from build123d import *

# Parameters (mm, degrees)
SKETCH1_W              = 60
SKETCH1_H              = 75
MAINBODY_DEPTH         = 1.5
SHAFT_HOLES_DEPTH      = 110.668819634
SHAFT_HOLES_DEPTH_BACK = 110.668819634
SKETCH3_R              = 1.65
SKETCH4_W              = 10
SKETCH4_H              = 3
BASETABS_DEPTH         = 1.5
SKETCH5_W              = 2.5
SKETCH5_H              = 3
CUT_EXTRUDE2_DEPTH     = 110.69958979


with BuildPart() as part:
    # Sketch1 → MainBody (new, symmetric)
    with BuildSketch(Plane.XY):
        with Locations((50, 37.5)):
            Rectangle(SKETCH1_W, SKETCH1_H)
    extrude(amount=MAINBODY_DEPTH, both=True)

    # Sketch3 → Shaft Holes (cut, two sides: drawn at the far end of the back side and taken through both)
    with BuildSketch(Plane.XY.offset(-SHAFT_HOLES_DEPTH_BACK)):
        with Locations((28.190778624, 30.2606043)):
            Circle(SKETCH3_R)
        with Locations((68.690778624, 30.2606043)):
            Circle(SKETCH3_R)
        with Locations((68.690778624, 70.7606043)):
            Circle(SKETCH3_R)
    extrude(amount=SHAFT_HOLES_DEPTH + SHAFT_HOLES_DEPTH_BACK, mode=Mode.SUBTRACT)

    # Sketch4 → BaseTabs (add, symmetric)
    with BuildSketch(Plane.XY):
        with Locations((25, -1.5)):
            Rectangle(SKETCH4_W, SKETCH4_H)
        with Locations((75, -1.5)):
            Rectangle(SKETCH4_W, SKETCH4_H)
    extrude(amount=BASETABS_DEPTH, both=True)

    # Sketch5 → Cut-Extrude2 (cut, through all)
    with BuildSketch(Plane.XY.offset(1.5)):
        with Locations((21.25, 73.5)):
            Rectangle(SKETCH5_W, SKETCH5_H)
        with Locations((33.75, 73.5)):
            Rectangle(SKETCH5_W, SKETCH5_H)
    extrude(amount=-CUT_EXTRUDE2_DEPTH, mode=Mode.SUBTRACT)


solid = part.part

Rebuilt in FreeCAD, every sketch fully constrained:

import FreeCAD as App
import Part
import Sketcher

V = App.Vector
Q = App.Units.Quantity


def add_polygon(sketch, points):
    """Adds a closed chain of lines whose ends are joined by coincident constraints."""
    first, n = sketch.GeometryCount, len(points)
    for a, b in zip(points, points[1:] + points[:1]):
        sketch.addGeometry(Part.LineSegment(App.Vector(*a, 0), App.Vector(*b, 0)), False)
    for i in range(n):
        sketch.addConstraint(Sketcher.Constraint("Coincident", first + i, 2, first + (i + 1) % n, 1))

doc = App.newDocument("Part")
params = doc.addObject("Spreadsheet::Sheet", "Params")
for row, (alias, value) in enumerate([
    ("sketch1_width", "60 mm"),
    ("sketch1_height", "75 mm"),
    ("pad1_length", "3 mm"),
    ("sketch2_diameter", "3.3 mm"),
    ("sketch3_width", "10 mm"),
    ("sketch3_height", "3 mm"),
    ("pad2_length", "3 mm"),
    ("sketch4_height", "3 mm"),
    ("sketch4_width", "2.5 mm"),
], start=1):
    params.set(f"A{row}", alias)
    params.set(f"B{row}", "=" + value)
    params.setAlias(f"B{row}", alias)

body = doc.addObject("PartDesign::Body", "Body")

# Sketch on XY plane
sketch1 = body.newObject("Sketcher::SketchObject", "Sketch")
sketch1.AttachmentSupport = (doc.getObject("XY_Plane"), [""])
sketch1.MapMode = "FlatFace"
add_polygon(sketch1, [(20, 75), (20, 0), (80, 0), (80, 75)])  # lines 0-3
sketch1.addConstraint([
    Sketcher.Constraint("Vertical", 0),
    Sketcher.Constraint("Horizontal", 1),
    Sketcher.Constraint("Vertical", 2),
    Sketcher.Constraint("Horizontal", 3),
    Sketcher.Constraint("PointOnObject", 0, 2, -1),
    Sketcher.Constraint("DistanceX", 1, 1, 1, 2, Q("60 mm")),
    Sketcher.Constraint("DistanceY", 0, 2, 0, 1, Q("75 mm")),
    Sketcher.Constraint("DistanceX", -1, 1, 0, 2, Q("20 mm")),
])
sketch1.setExpression("Constraints[9]", "Params.sketch1_width")
sketch1.setExpression("Constraints[10]", "Params.sketch1_height")
pad1 = body.newObject("PartDesign::Pad", "Pad")
pad1.Profile = sketch1
pad1.setExpression("Length", "Params.pad1_length")
pad1.Midplane = True

# Sketch on XY plane
sketch2 = body.newObject("Sketcher::SketchObject", "Sketch001")
sketch2.AttachmentSupport = (doc.getObject("XY_Plane"), [""])
sketch2.MapMode = "FlatFace"
sketch2.addGeometry([
    Part.Circle(V(28.2, 30.3, 0), V(0, 0, 1), 1.6),
    Part.Circle(V(68.7, 30.3, 0), V(0, 0, 1), 1.6),
    Part.Circle(V(68.7, 70.8, 0), V(0, 0, 1), 1.6),
], False)
sketch2.addConstraint([
    Sketcher.Constraint("Equal", 0, 1),
    Sketcher.Constraint("Equal", 1, 2),
    Sketcher.Constraint("Horizontal", 0, 3, 1, 3),
    Sketcher.Constraint("Vertical", 1, 3, 2, 3),
    Sketcher.Constraint("Diameter", 0, Q("3.3 mm")),
    Sketcher.Constraint("DistanceX", 0, 3, 1, 3, Q("40.5 mm")),
    Sketcher.Constraint("DistanceY", 1, 3, 2, 3, Q("40.5 mm")),
    Sketcher.Constraint("DistanceX", -1, 1, 0, 3, Q("28.190779 mm")),
    Sketcher.Constraint("DistanceY", -1, 1, 0, 3, Q("30.260604 mm")),
])
sketch2.setExpression("Constraints[4]", "Params.sketch2_diameter")
pocket1 = body.newObject("PartDesign::Pocket", "Pocket")
pocket1.Profile = sketch2
pocket1.Type = "ThroughAll"
pocket1.Midplane = True

# Sketch on XY plane
sketch3 = body.newObject("Sketcher::SketchObject", "Sketch002")
sketch3.AttachmentSupport = (doc.getObject("XY_Plane"), [""])
sketch3.MapMode = "FlatFace"
add_polygon(sketch3, [(20, 0), (20, -3), (30, -3), (30, 0)])  # lines 0-3
add_polygon(sketch3, [(70, 0), (70, -3), (80, -3), (80, 0)])  # lines 4-7
sketch3.addConstraint([
    Sketcher.Constraint("Vertical", 0),
    Sketcher.Constraint("Horizontal", 1),
    Sketcher.Constraint("Vertical", 2),
    Sketcher.Constraint("Horizontal", 3),
    Sketcher.Constraint("Vertical", 4),
    Sketcher.Constraint("Horizontal", 5),
    Sketcher.Constraint("Vertical", 6),
    Sketcher.Constraint("Horizontal", 7),
    Sketcher.Constraint("PointOnObject", 2, 2, -1),
    Sketcher.Constraint("PointOnObject", 6, 2, -1),
    Sketcher.Constraint("Horizontal", 1, 2, 4, 2),
    Sketcher.Constraint("Equal", 3, 5),
    Sketcher.Constraint("DistanceX", 1, 1, 1, 2, Q("10 mm")),
    Sketcher.Constraint("DistanceY", 0, 2, 0, 1, Q("3 mm")),
    Sketcher.Constraint("DistanceX", -1, 1, 0, 2, Q("20 mm")),
    Sketcher.Constraint("DistanceX", -1, 1, 4, 2, Q("70 mm")),
])
sketch3.setExpression("Constraints[20]", "Params.sketch3_width")
sketch3.setExpression("Constraints[21]", "Params.sketch3_height")
pad2 = body.newObject("PartDesign::Pad", "Pad001")
pad2.Profile = sketch3
pad2.setExpression("Length", "Params.pad2_length")
pad2.Midplane = True

# Sketch on XY plane
sketch4 = body.newObject("Sketcher::SketchObject", "Sketch003")
sketch4.AttachmentSupport = (doc.getObject("XY_Plane"), [""])
sketch4.MapMode = "FlatFace"
sketch4.AttachmentOffset = App.Placement(V(0, 0, 1.5), App.Rotation())
add_polygon(sketch4, [(20, 75), (20, 72), (22.5, 72), (22.5, 75)])  # lines 0-3
add_polygon(sketch4, [(32.5, 75), (32.5, 72), (35, 72), (35, 75)])  # lines 4-7
sketch4.addConstraint([
    Sketcher.Constraint("Vertical", 0),
    Sketcher.Constraint("Horizontal", 1),
    Sketcher.Constraint("Vertical", 2),
    Sketcher.Constraint("Horizontal", 3),
    Sketcher.Constraint("Vertical", 4),
    Sketcher.Constraint("Horizontal", 5),
    Sketcher.Constraint("Vertical", 6),
    Sketcher.Constraint("Horizontal", 7),
    Sketcher.Constraint("Horizontal", 1, 2, 4, 2),
    Sketcher.Constraint("Horizontal", 3, 2, 6, 2),
    Sketcher.Constraint("Equal", 3, 5),
    Sketcher.Constraint("DistanceY", 0, 2, 0, 1, Q("3 mm")),
    Sketcher.Constraint("DistanceX", 1, 1, 1, 2, Q("2.5 mm")),
    Sketcher.Constraint("DistanceX", -1, 1, 0, 2, Q("20 mm")),
    Sketcher.Constraint("DistanceY", -1, 1, 0, 2, Q("72 mm")),
    Sketcher.Constraint("DistanceX", -1, 1, 5, 2, Q("35 mm")),
])
sketch4.setExpression("Constraints[19]", "Params.sketch4_height")
sketch4.setExpression("Constraints[20]", "Params.sketch4_width")
pocket2 = body.newObject("PartDesign::Pocket", "Pocket001")
pocket2.Profile = sketch4
pocket2.Type = "ThroughAll"

doc.recompute()
